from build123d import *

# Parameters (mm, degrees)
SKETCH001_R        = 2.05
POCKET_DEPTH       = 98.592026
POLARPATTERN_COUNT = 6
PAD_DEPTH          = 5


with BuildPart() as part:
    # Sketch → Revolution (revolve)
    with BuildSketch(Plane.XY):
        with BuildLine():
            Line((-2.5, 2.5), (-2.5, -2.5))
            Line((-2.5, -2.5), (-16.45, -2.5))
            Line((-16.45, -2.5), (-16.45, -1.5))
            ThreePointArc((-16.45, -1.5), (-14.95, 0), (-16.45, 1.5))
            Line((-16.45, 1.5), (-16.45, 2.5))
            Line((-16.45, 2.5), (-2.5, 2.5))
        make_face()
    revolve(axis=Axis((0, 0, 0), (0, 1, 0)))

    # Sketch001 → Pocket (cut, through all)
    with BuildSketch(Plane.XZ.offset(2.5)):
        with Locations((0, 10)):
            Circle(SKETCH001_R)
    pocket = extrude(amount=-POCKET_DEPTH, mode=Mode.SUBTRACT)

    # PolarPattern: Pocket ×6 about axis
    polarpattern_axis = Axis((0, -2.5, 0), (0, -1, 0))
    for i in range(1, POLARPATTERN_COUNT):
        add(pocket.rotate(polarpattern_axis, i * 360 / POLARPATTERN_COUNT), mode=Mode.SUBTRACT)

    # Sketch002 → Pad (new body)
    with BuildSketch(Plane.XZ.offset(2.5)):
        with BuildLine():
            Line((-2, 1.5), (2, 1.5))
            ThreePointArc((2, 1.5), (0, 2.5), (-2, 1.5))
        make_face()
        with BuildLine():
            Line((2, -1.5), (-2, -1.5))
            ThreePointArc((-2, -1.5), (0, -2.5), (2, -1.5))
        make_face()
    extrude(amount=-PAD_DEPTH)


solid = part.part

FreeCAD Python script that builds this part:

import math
import FreeCAD as App
import Part
import Sketcher
from FreeCAD import Vector
Q = App.Units.Quantity

doc = App.newDocument("Part")
body = doc.addObject("PartDesign::Body", "Body")

# Sketch on XY plane
sketch1 = body.newObject("Sketcher::SketchObject", "Sketch")
sketch1.AttachmentSupport = (doc.getObject("XY_Plane"), [""])
sketch1.MapMode = "FlatFace"
sketch1.addGeometry([
    Part.LineSegment(Vector(-2.5, -2.5, 0), Vector(-2.5, 2.5, 0)),  # 0
    Part.LineSegment(Vector(-2.5, 2.5, 0), Vector(-16.4, 2.5, 0)),  # 1
    Part.LineSegment(Vector(-16.4, 2.5, 0), Vector(-16.4, 1.5, 0)),  # 2
    Part.ArcOfCircle(Part.Circle(Vector(-16.4, 0, 0), Vector(0, 0, 1), 1.5), math.radians(-90), math.radians(90)),  # 3
    Part.LineSegment(Vector(-16.4, -1.5, 0), Vector(-16.4, -2.5, 0)),  # 4
    Part.LineSegment(Vector(-16.4, -2.5, 0), Vector(-2.5, -2.5, 0)),  # 5
], False)
sketch1.addConstraint([
    Sketcher.Constraint("Coincident", 0, 2, 1, 1),
    Sketcher.Constraint("Coincident", 1, 2, 2, 1),
    Sketcher.Constraint("Coincident", 2, 2, 3, 2),
    Sketcher.Constraint("Coincident", 3, 1, 4, 1),
    Sketcher.Constraint("Coincident", 4, 2, 5, 1),
    Sketcher.Constraint("Coincident", 5, 2, 0, 1),
    Sketcher.Constraint("Vertical", 0),
    Sketcher.Constraint("Horizontal", 1),
    Sketcher.Constraint("Vertical", 2),
    Sketcher.Constraint("Vertical", 4),
    Sketcher.Constraint("Horizontal", 5),
    Sketcher.Constraint("Symmetric", 2, 2, 3, 1, -1),
    Sketcher.Constraint("Vertical", 3, 3, 1, 2),
    Sketcher.Constraint("Equal", 2, 4),
    Sketcher.Constraint("Radius", 3, Q("1.5 mm")),
    Sketcher.Constraint("DistanceY", 0, 1, 0, 2, Q("5 mm")),
    Sketcher.Constraint("DistanceX", 1, 2, 1, 1, Q("13.95 mm")),
    Sketcher.Constraint("DistanceX", 0, 2, -1, 1, Q("2.5 mm")),
])
revolution = body.newObject("PartDesign::Revolution", "Revolution")
revolution.Profile = sketch1
revolution.ReferenceAxis = (sketch1, ["V_Axis"])
revolution.Angle = 360

# Sketch on XZ plane
sketch2 = body.newObject("Sketcher::SketchObject", "Sketch001")
sketch2.AttachmentSupport = (doc.getObject("XZ_Plane"), [""])
sketch2.MapMode = "FlatFace"
sketch2.AttachmentOffset = App.Placement(Vector(0, 0, 2.5), App.Rotation())
sketch2.addGeometry(Part.Circle(Vector(0, 10, 0), Vector(0, 0, 1), 2), False)
sketch2.addConstraint([
    Sketcher.Constraint("PointOnObject", 0, 3, -2),
    Sketcher.Constraint("Diameter", 0, Q("4.1 mm")),
    Sketcher.Constraint("DistanceY", -1, 1, 0, 3, Q("10 mm")),
])
pocket1 = body.newObject("PartDesign::Pocket", "Pocket")
pocket1.Profile = sketch2
pocket1.Type = "ThroughAll"
doc.recompute()

polarpattern = body.newObject("PartDesign::PolarPattern", "PolarPattern")
polarpattern.Originals = [pocket1]
polarpattern.Axis = (doc.getObject("Y_Axis"), [""])
polarpattern.Angle = 360
polarpattern.Occurrences = 6
body.Tip = polarpattern

# Sketch on XZ plane
sketch3 = body.newObject("Sketcher::SketchObject", "Sketch002")
sketch3.AttachmentSupport = (doc.getObject("XZ_Plane"), [""])
sketch3.MapMode = "FlatFace"
sketch3.AttachmentOffset = App.Placement(Vector(0, 0, 2.5), App.Rotation())
sketch3.addGeometry([
    Part.LineSegment(Vector(-2, 1.5, 0), Vector(2, 1.5, 0)),
    Part.ArcOfCircle(Part.Circle(Vector(0, 0, 0), Vector(0, 0, 1), 2.5), math.radians(37), math.radians(143)),
    Part.LineSegment(Vector(2, -1.5, 0), Vector(-2, -1.5, 0)),
    Part.ArcOfCircle(Part.Circle(Vector(0, 0, 0), Vector(0, 0, 1), 2.5), math.radians(-143), math.radians(-37)),
], False)
sketch3.addConstraint([
    Sketcher.Constraint("Coincident", 0, 1, 1, 2),
    Sketcher.Constraint("Coincident", 1, 1, 0, 2),
    Sketcher.Constraint("Coincident", 2, 1, 3, 2),
    Sketcher.Constraint("Coincident", 3, 1, 2, 2),
    Sketcher.Constraint("Horizontal", 0),
    Sketcher.Constraint("Horizontal", 2),
    Sketcher.Constraint("Coincident", 1, 3, -1, 1),
    Sketcher.Constraint("Coincident", 3, 3, -1, 1),
    Sketcher.Constraint("Equal", 1, 3),
    Sketcher.Constraint("Vertical", 1, 1, 2, 1),
    Sketcher.Constraint("Radius", 1, Q("2.5 mm")),
    Sketcher.Constraint("DistanceX", 0, 1, 0, 2, Q("4 mm")),
])
pad1 = body.newObject("PartDesign::Pad", "Pad")
pad1.Profile = sketch3
pad1.Length = 5
pad1.Reversed = True

doc.recompute()
